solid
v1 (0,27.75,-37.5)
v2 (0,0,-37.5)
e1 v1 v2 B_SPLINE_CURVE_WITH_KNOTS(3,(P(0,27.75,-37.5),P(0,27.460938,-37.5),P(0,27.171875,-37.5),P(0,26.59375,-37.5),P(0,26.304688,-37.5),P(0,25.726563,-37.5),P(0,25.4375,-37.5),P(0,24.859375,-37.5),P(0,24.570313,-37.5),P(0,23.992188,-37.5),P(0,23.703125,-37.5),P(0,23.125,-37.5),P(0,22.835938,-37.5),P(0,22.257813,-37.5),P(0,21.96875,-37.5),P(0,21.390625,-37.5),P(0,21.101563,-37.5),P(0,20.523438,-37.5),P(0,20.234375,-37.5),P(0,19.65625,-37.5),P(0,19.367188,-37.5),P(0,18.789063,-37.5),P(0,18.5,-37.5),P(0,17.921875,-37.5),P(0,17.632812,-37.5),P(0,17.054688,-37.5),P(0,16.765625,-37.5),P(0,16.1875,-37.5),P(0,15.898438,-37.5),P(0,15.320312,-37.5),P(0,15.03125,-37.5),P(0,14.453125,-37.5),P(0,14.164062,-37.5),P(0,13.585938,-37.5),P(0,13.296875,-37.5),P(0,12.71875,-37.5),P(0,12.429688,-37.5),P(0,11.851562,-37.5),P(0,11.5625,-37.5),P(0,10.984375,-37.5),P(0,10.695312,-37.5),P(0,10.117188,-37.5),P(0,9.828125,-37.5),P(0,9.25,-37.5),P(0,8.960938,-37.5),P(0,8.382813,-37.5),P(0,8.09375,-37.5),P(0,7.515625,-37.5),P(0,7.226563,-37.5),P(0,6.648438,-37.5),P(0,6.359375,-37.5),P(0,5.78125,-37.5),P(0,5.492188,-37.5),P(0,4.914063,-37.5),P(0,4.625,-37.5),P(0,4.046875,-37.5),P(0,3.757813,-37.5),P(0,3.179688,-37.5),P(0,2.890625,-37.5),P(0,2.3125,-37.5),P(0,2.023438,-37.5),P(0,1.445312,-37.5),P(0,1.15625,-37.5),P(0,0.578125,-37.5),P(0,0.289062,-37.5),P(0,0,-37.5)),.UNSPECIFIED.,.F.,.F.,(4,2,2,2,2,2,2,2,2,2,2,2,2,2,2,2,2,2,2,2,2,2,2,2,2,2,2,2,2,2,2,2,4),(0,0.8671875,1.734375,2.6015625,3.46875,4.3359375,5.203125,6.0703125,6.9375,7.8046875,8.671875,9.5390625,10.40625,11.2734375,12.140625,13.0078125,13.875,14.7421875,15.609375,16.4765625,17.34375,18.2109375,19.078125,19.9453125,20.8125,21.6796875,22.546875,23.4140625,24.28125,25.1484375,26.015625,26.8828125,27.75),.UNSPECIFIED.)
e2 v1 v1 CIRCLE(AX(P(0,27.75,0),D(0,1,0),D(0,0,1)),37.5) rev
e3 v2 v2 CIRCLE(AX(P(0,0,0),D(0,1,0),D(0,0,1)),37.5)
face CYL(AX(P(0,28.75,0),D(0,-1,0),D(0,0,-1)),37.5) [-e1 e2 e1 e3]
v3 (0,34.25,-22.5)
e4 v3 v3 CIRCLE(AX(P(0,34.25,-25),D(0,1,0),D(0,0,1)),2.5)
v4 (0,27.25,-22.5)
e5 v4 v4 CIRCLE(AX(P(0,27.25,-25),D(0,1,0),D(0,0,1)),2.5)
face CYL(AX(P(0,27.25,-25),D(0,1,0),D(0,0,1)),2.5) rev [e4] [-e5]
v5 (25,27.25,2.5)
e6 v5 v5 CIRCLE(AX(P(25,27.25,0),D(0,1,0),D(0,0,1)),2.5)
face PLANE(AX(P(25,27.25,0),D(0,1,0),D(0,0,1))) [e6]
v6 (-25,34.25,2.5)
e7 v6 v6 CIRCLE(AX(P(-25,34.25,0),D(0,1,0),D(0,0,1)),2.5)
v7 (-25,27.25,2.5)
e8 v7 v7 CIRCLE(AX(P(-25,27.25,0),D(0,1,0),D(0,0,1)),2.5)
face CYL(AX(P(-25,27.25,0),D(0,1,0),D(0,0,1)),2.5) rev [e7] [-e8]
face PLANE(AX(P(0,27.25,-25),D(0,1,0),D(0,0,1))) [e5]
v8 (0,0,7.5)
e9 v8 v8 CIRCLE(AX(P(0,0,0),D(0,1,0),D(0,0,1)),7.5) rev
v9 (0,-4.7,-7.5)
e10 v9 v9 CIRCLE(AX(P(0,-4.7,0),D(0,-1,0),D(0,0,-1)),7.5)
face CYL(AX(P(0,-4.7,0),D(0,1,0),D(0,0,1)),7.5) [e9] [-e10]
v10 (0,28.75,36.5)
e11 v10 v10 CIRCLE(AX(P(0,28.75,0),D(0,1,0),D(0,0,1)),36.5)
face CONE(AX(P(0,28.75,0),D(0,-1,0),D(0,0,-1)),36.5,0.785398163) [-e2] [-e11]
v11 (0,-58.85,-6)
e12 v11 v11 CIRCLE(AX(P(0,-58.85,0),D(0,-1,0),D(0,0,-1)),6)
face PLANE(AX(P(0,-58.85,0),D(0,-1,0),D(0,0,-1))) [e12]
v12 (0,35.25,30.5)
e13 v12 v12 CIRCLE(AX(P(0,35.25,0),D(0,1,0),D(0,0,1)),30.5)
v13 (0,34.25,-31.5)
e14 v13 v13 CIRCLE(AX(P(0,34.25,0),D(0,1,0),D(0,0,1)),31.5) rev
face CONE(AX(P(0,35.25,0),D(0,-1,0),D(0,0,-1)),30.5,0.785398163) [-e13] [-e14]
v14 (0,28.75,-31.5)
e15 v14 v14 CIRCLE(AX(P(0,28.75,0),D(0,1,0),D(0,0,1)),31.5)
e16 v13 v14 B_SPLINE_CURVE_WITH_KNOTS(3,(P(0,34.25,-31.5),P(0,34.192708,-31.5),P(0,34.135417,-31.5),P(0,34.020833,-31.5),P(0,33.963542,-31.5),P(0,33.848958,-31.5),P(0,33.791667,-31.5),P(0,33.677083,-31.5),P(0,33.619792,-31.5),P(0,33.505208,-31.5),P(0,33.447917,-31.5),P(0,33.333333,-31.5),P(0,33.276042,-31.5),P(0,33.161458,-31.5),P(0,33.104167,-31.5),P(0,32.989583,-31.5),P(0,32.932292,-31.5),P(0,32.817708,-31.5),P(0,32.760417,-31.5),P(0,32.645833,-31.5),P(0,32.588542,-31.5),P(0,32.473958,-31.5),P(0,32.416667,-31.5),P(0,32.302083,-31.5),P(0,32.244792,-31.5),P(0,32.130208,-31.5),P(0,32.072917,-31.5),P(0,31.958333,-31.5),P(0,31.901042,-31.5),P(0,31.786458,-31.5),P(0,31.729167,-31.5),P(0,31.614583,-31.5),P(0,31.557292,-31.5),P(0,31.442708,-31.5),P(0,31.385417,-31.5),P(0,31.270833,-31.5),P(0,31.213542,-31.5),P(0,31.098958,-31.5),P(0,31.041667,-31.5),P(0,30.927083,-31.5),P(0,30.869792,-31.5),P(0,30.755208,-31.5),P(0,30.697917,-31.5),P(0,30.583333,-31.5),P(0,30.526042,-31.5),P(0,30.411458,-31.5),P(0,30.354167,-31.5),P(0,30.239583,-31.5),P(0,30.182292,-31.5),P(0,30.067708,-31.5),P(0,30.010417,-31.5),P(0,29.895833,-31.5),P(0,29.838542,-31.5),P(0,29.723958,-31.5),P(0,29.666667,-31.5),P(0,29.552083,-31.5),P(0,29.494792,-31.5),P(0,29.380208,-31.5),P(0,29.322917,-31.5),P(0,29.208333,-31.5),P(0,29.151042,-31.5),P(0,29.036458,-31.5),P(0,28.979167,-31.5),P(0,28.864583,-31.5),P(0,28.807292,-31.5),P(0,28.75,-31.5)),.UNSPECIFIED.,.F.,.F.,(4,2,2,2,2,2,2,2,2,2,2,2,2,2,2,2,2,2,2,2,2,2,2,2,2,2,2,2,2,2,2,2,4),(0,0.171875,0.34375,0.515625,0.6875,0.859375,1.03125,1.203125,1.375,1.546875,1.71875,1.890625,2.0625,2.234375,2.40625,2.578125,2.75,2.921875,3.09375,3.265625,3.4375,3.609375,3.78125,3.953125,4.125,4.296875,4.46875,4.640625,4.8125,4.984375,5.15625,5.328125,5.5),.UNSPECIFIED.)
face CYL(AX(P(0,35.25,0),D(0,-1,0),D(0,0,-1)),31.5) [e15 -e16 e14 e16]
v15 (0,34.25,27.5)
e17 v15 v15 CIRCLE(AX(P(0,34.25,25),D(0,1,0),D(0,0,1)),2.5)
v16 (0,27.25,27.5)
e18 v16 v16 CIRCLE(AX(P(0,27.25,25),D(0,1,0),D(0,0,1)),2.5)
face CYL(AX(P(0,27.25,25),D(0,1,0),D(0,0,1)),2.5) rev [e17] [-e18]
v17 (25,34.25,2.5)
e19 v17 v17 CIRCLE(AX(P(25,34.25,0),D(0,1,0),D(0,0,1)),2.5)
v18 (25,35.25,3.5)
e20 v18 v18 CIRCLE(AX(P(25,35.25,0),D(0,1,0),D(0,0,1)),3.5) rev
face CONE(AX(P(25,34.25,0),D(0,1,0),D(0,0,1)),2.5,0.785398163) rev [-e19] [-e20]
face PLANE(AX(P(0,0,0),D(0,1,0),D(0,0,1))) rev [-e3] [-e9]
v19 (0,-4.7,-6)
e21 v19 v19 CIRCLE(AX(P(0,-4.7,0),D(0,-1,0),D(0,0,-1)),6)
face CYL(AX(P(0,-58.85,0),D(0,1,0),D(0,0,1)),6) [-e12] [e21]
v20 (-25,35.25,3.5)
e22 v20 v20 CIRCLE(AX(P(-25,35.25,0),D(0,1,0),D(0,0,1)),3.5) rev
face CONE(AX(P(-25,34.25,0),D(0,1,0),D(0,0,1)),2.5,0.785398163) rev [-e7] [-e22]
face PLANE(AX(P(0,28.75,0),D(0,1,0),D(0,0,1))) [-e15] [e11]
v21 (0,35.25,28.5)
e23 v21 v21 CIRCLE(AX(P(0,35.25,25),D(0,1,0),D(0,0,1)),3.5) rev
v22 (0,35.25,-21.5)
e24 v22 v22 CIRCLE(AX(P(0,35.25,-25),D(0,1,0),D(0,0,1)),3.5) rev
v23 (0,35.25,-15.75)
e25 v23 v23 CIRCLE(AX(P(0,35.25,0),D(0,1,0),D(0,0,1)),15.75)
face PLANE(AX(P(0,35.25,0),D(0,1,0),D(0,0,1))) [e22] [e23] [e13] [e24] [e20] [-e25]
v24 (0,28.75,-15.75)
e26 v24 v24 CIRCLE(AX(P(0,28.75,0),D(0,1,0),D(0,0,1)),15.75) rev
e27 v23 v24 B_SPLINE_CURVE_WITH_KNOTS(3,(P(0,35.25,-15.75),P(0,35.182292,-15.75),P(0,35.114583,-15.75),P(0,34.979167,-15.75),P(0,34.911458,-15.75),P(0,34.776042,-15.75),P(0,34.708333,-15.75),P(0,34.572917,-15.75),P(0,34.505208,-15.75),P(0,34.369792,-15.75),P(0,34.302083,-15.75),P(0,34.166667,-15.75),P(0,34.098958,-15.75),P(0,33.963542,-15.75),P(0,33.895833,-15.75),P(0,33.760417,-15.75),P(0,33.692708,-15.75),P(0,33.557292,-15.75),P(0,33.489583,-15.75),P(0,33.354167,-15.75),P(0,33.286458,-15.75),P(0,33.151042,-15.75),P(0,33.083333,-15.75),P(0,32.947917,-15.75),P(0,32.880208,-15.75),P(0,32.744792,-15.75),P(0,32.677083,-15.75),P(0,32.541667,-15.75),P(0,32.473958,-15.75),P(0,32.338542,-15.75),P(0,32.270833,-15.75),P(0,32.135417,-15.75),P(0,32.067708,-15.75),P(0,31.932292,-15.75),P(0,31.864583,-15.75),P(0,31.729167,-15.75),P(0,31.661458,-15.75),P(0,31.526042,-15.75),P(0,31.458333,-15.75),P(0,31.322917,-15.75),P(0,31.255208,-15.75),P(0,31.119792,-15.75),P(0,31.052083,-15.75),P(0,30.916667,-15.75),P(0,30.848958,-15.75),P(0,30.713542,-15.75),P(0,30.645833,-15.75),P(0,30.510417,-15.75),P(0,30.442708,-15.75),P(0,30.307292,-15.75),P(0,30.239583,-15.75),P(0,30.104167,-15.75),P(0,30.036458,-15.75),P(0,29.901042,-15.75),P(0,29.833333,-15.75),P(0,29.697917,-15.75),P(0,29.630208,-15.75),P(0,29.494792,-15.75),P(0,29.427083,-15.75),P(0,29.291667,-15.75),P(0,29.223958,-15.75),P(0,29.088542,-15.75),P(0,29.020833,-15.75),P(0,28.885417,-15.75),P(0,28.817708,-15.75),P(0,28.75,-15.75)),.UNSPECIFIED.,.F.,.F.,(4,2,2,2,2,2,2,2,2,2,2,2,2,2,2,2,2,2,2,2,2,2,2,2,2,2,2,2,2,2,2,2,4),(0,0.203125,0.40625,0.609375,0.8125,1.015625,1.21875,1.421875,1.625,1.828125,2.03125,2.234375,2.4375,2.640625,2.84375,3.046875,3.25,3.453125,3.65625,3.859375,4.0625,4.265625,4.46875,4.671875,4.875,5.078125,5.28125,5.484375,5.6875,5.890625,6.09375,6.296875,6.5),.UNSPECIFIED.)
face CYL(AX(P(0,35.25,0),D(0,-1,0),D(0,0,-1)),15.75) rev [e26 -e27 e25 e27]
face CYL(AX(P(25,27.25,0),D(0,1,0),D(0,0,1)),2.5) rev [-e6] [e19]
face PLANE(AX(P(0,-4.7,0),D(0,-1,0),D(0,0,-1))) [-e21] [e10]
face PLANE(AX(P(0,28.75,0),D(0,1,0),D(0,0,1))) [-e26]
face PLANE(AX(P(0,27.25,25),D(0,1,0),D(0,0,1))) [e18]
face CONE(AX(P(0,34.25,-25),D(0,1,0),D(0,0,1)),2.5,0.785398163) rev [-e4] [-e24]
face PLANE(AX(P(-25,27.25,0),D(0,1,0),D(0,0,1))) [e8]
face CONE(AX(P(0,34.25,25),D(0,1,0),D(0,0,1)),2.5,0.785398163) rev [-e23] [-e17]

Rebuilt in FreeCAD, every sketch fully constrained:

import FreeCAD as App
import Part
import Sketcher

V = App.Vector


def edges_at(feature, points):
    """Names of the edges that pass closest to the given points."""
    edges = feature.Shape.Edges
    near = lambda p: min(range(len(edges)), key=lambda i: edges[i].distToShape(Part.Vertex(*p))[0])
    return sorted({f"Edge{near(p) + 1}" for p in points})

doc = App.newDocument("Part")
body = doc.addObject("PartDesign::Body", "Body")

# Sketch on XZ plane
sketch1 = body.newObject("Sketcher::SketchObject", "Sketch")
sketch1.AttachmentSupport = (doc.getObject("XZ_Plane"), [""])
sketch1.MapMode = "FlatFace"
sketch1.addGeometry(Part.Circle(V(0, 0, 0), V(0, 0, 1), 38), False)
sketch1.addConstraint([
    Sketcher.Constraint("Coincident", 0, 3, -1, 1),
    Sketcher.Constraint("Diameter", 0, 75.0),
])
pad1 = body.newObject("PartDesign::Pad", "Pad")
pad1.Profile = sketch1
pad1.Length = 28.75
pad1.Reversed = True

# Sketch on XZ plane
sketch2 = body.newObject("Sketcher::SketchObject", "Sketch001")
sketch2.AttachmentSupport = (doc.getObject("XZ_Plane"), [""])
sketch2.MapMode = "FlatFace"
sketch2.AttachmentOffset = App.Placement(V(0, 0, -28.75), App.Rotation())
sketch2.addGeometry([
    Part.Circle(V(0, 0, 0), V(0, 0, 1), 32),
    Part.Circle(V(0, 0, 0), V(0, 0, 1), 16),
], False)
sketch2.addConstraint([
    Sketcher.Constraint("Coincident", 0, 3, -1, 1),
    Sketcher.Constraint("Coincident", 1, 3, -1, 1),
    Sketcher.Constraint("Diameter", 0, 63.0),
    Sketcher.Constraint("Diameter", 1, 31.5),
])
pad2 = body.newObject("PartDesign::Pad", "Pad001")
pad2.Profile = sketch2
pad2.Length = 6.5
pad2.Reversed = True

# Sketch on XZ plane
sketch3 = body.newObject("Sketcher::SketchObject", "Sketch002")
sketch3.AttachmentSupport = (doc.getObject("XZ_Plane"), [""])
sketch3.MapMode = "FlatFace"
sketch3.addGeometry(Part.Circle(V(0, 0, 0), V(0, 0, 1), 6), False)
sketch3.addConstraint([
    Sketcher.Constraint("Coincident", 0, 3, -1, 1),
    Sketcher.Constraint("Diameter", 0, 12.0),
])
pad3 = body.newObject("PartDesign::Pad", "Pad002")
pad3.Profile = sketch3
pad3.Length = 58.85

# Sketch on XZ plane
sketch4 = body.newObject("Sketcher::SketchObject", "Sketch003")
sketch4.AttachmentSupport = (doc.getObject("XZ_Plane"), [""])
sketch4.MapMode = "FlatFace"
sketch4.addGeometry(Part.Circle(V(0, 0, 0), V(0, 0, 1), 8), False)
sketch4.addConstraint([
    Sketcher.Constraint("Coincident", 0, 3, -1, 1),
    Sketcher.Constraint("Diameter", 0, 15.0),
])
pad4 = body.newObject("PartDesign::Pad", "Pad003")
pad4.Profile = sketch4
pad4.Length = 4.7
doc.recompute()

chamfer = body.newObject("PartDesign::Chamfer", "Chamfer")
chamfer.Base = (pad4, edges_at(pad4, [(0, 28.75, 37.5), (0, 35.25, 31.5)]))
chamfer.Size = 1

# Sketch on XZ plane
sketch5 = body.newObject("Sketcher::SketchObject", "Sketch004")
sketch5.AttachmentSupport = (doc.getObject("XZ_Plane"), [""])
sketch5.MapMode = "FlatFace"
sketch5.AttachmentOffset = App.Placement(V(0, 0, -35.25), App.Rotation())
sketch5.addGeometry([
    Part.Circle(V(0, -25, 0), V(0, 0, 1), 2.5),
    Part.Circle(V(25, 0, 0), V(0, 0, 1), 2.5),
    Part.Circle(V(0, 25, 0), V(0, 0, 1), 2.5),
    Part.Circle(V(-25, 0, 0), V(0, 0, 1), 2.5),
], False)
sketch5.addConstraint([
    Sketcher.Constraint("Equal", 0, 1),
    Sketcher.Constraint("Equal", 1, 2),
    Sketcher.Constraint("Equal", 2, 3),
    Sketcher.Constraint("Symmetric", 0, 3, 2, 3, -1, 1),
    Sketcher.Constraint("Symmetric", 1, 3, 3, 3, -1, 1),
    Sketcher.Constraint("PointOnObject", 0, 3, -2),
    Sketcher.Constraint("PointOnObject", 1, 3, -1),
    Sketcher.Constraint("Diameter", 0, 5.0),
    Sketcher.Constraint("DistanceY", 0, 3, -1, 1, 25.0),
    Sketcher.Constraint("DistanceX", -1, 1, 1, 3, 25.0),
])
pocket1 = body.newObject("PartDesign::Pocket", "Pocket")
pocket1.Profile = sketch5
pocket1.Length = 8
pocket1.Reversed = True
doc.recompute()

chamfer2 = body.newObject("PartDesign::Chamfer", "Chamfer001")
chamfer2.Base = (pocket1, edges_at(pocket1, [
    (0, 35.25, -27.5),
    (25, 35.25, -2.5),
    (0, 35.25, 22.5),
    (-25, 35.25, -2.5),
]))
chamfer2.Size = 1

doc.recompute()
